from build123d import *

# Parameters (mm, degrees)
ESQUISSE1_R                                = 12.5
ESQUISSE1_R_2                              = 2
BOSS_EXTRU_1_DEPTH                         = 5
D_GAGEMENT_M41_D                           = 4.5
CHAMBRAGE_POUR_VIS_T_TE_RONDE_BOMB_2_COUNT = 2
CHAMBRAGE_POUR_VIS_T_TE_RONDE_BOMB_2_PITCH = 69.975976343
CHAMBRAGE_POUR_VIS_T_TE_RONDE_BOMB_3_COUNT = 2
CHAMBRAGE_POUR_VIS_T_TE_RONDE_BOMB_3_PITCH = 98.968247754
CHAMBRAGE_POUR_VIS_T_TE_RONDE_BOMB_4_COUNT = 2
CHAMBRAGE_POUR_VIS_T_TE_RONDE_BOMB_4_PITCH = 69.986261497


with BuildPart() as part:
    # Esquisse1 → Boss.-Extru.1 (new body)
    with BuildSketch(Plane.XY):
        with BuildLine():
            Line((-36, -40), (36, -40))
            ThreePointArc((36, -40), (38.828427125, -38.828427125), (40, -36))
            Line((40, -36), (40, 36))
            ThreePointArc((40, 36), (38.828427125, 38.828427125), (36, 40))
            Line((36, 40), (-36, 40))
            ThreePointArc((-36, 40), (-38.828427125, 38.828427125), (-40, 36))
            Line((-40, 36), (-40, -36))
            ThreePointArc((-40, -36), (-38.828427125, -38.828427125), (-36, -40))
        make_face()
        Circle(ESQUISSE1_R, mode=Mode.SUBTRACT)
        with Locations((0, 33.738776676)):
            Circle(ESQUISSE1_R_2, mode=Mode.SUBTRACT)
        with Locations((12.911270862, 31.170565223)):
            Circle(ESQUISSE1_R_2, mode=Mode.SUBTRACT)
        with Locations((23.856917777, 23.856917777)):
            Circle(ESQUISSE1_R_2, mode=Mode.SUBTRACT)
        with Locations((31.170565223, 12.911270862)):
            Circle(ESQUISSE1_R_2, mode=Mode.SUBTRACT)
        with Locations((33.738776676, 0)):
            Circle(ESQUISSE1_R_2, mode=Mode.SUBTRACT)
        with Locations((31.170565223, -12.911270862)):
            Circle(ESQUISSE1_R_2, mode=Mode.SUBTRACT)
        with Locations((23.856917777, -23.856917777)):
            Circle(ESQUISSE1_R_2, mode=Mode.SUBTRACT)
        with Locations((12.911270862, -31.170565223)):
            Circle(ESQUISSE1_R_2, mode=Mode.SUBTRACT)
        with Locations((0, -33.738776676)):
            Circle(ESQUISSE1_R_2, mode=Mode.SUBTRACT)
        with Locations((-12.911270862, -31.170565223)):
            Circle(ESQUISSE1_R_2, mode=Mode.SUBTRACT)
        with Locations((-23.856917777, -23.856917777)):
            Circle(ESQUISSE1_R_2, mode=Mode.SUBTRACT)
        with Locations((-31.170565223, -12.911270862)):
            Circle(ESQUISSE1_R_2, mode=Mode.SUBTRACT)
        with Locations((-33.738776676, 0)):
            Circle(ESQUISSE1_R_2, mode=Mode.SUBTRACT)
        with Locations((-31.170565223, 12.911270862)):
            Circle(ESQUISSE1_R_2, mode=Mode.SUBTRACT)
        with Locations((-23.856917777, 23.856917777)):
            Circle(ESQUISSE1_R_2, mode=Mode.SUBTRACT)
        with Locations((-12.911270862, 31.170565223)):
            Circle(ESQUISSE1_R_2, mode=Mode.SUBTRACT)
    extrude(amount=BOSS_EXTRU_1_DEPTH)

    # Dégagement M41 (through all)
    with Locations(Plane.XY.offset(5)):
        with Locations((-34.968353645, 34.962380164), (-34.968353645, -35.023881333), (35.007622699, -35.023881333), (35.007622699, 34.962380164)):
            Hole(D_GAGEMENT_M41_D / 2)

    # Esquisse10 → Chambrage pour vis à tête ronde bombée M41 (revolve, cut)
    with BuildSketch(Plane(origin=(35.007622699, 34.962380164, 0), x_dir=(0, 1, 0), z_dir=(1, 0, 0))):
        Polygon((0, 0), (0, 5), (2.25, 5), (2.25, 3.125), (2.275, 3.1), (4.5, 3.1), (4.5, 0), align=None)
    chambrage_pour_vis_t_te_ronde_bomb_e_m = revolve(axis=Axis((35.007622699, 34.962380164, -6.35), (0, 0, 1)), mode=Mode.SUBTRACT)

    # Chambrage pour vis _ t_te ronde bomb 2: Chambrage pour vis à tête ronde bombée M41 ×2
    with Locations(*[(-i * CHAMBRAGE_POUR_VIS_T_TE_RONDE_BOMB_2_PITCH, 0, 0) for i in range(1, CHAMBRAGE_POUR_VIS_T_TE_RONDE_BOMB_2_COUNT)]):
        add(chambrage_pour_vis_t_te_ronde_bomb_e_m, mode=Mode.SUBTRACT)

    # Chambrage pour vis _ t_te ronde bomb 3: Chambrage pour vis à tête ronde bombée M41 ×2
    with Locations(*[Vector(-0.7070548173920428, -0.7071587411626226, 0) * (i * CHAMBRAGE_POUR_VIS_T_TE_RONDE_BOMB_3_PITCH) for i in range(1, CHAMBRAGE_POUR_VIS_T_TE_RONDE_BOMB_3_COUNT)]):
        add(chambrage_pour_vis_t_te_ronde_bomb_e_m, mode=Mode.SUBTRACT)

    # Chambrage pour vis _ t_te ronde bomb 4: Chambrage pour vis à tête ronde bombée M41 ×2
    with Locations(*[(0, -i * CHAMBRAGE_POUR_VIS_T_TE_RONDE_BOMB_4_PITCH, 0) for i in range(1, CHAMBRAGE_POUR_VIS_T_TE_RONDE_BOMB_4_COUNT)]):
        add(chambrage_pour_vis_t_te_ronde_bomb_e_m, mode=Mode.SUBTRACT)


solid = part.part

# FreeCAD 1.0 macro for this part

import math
import FreeCAD as App
import Part
import Sketcher
from FreeCAD import Vector
Q = App.Units.Quantity

doc = App.newDocument("Part")
body = doc.addObject("PartDesign::Body", "Body")

# Sketch on XY plane
sketch1 = body.newObject("Sketcher::SketchObject", "Sketch")
sketch1.AttachmentSupport = (doc.getObject("XY_Plane"), [""])
sketch1.MapMode = "FlatFace"
sketch1.addGeometry([
    Part.LineSegment(Vector(-36, -40, 0), Vector(36, -40, 0)),  # 0
    Part.ArcOfCircle(Part.Circle(Vector(36, -36, 0), Vector(0, 0, 1), 4), math.radians(-90), math.radians(0)),  # 1
    Part.LineSegment(Vector(40, -36, 0), Vector(40, 36, 0)),  # 2
    Part.ArcOfCircle(Part.Circle(Vector(36, 36, 0), Vector(0, 0, 1), 4), math.radians(0), math.radians(90)),  # 3
    Part.LineSegment(Vector(36, 40, 0), Vector(-36, 40, 0)),  # 4
    Part.ArcOfCircle(Part.Circle(Vector(-36, 36, 0), Vector(0, 0, 1), 4), math.radians(90), math.radians(180)),  # 5
    Part.LineSegment(Vector(-40, 36, 0), Vector(-40, -36, 0)),  # 6
    Part.ArcOfCircle(Part.Circle(Vector(-36, -36, 0), Vector(0, 0, 1), 4), math.radians(180), math.radians(270)),  # 7
    Part.Circle(Vector(-23.9, -23.9, 0), Vector(0, 0, 1), 2),  # 8
    Part.Circle(Vector(-12.9, -31.2, 0), Vector(0, 0, 1), 2),  # 9
    Part.Circle(Vector(-31.2, -12.9, 0), Vector(0, 0, 1), 2),  # 10
    Part.Circle(Vector(0, -33.7, 0), Vector(0, 0, 1), 2),  # 11
    Part.Circle(Vector(12.9, -31.2, 0), Vector(0, 0, 1), 2),  # 12
    Part.Circle(Vector(23.9, -23.9, 0), Vector(0, 0, 1), 2),  # 13
    Part.Circle(Vector(31.2, -12.9, 0), Vector(0, 0, 1), 2),  # 14
    Part.Circle(Vector(-33.7, 0, 0), Vector(0, 0, 1), 2),  # 15
    Part.Circle(Vector(-31.2, 12.9, 0), Vector(0, 0, 1), 2),  # 16
    Part.Circle(Vector(-23.9, 23.9, 0), Vector(0, 0, 1), 2),  # 17
    Part.Circle(Vector(-12.9, 31.2, 0), Vector(0, 0, 1), 2),  # 18
    Part.Circle(Vector(0, 0, 0), Vector(0, 0, 1), 12.5),  # 19
    Part.Circle(Vector(33.7, 0, 0), Vector(0, 0, 1), 2),  # 20
    Part.Circle(Vector(31.2, 12.9, 0), Vector(0, 0, 1), 2),  # 21
    Part.Circle(Vector(0, 33.7, 0), Vector(0, 0, 1), 2),  # 22
    Part.Circle(Vector(12.9, 31.2, 0), Vector(0, 0, 1), 2),  # 23
    Part.Circle(Vector(23.9, 23.9, 0), Vector(0, 0, 1), 2),  # 24
], False)
sketch1.addConstraint([
    Sketcher.Constraint("Tangent", 0, 2, 1, 1),
    Sketcher.Constraint("Tangent", 1, 2, 2, 1),
    Sketcher.Constraint("Tangent", 2, 2, 3, 1),
    Sketcher.Constraint("Tangent", 3, 2, 4, 1),
    Sketcher.Constraint("Tangent", 4, 2, 5, 1),
    Sketcher.Constraint("Tangent", 5, 2, 6, 1),
    Sketcher.Constraint("Tangent", 6, 2, 7, 1),
    Sketcher.Constraint("Tangent", 7, 2, 0, 1),
    Sketcher.Constraint("Horizontal", 0),
    Sketcher.Constraint("Vertical", 2),
    Sketcher.Constraint("Horizontal", 4),
    Sketcher.Constraint("Vertical", 6),
    Sketcher.Constraint("Coincident", 19, 3, -1, 1),
    Sketcher.Constraint("Equal", 1, 3),
    Sketcher.Constraint("Equal", 3, 5),
    Sketcher.Constraint("Equal", 5, 7),
    Sketcher.Constraint("Equal", 8, 9),
    Sketcher.Constraint("Equal", 9, 10),
    Sketcher.Constraint("Equal", 10, 11),
    Sketcher.Constraint("Equal", 11, 12),
    Sketcher.Constraint("Equal", 12, 13),
    Sketcher.Constraint("Equal", 13, 14),
    Sketcher.Constraint("Equal", 14, 15),
    Sketcher.Constraint("Equal", 15, 16),
    Sketcher.Constraint("Equal", 16, 17),
    Sketcher.Constraint("Equal", 17, 18),
    Sketcher.Constraint("Equal", 18, 20),
    Sketcher.Constraint("Equal", 20, 21),
    Sketcher.Constraint("Equal", 21, 22),
    Sketcher.Constraint("Equal", 22, 23),
    Sketcher.Constraint("Equal", 23, 24),
    Sketcher.Constraint("Symmetric", 1, 3, 5, 3, -1, 1),
    Sketcher.Constraint("Symmetric", 14, 3, 16, 3, -1, 1),
    Sketcher.Constraint("Symmetric", 13, 3, 17, 3, -1, 1),
    Sketcher.Constraint("Symmetric", 12, 3, 18, 3, -1, 1),
    Sketcher.Constraint("Symmetric", 15, 3, 20, 3, -1, 1),
    Sketcher.Constraint("Symmetric", 10, 3, 21, 3, -1, 1),
    Sketcher.Constraint("Symmetric", 11, 3, 22, 3, -1, 1),
    Sketcher.Constraint("Symmetric", 9, 3, 23, 3, -1, 1),
    Sketcher.Constraint("Symmetric", 8, 3, 24, 3, -1, 1),
    Sketcher.Constraint("Symmetric", 9, 3, 12, 3, -2),
    Sketcher.Constraint("Symmetric", 8, 3, 13, 3, -2),
    Sketcher.Constraint("Symmetric", 10, 3, 14, 3, -2),
    Sketcher.Constraint("PointOnObject", 11, 3, -2),
    Sketcher.Constraint("PointOnObject", 15, 3, -1),
    Sketcher.Constraint("Equal", 4, 2),
    Sketcher.Constraint("Diameter", 8, Q("4 mm")),
    Sketcher.Constraint("Diameter", 19, Q("25 mm")),
    Sketcher.Constraint("Radius", 1, Q("4 mm")),
    Sketcher.Constraint("DistanceX", 0, 1, 0, 2, Q("72 mm")),
    Sketcher.Constraint("DistanceX", 9, 3, -1, 1, Q("12.911271 mm")),
    Sketcher.Constraint("DistanceY", 10, 3, -1, 1, Q("12.911271 mm")),
    Sketcher.Constraint("DistanceY", 11, 3, 9, 3, Q("2.568211 mm")),
    Sketcher.Constraint("DistanceY", 11, 3, 8, 3, Q("9.881859 mm")),
    Sketcher.Constraint("DistanceX", 8, 3, 12, 3, Q("36.768189 mm")),
    Sketcher.Constraint("DistanceX", 15, 3, 10, 3, Q("2.568211 mm")),
    Sketcher.Constraint("DistanceX", 15, 3, 8, 3, Q("9.881859 mm")),
    Sketcher.Constraint("DistanceY", 8, 3, 16, 3, Q("36.768189 mm")),
])
pad1 = body.newObject("PartDesign::Pad", "Pad")
pad1.Profile = sketch1
pad1.Length = 5

# Sketch on XY plane
sketch2 = body.newObject("Sketcher::SketchObject", "Sketch001")
sketch2.AttachmentSupport = (doc.getObject("XY_Plane"), [""])
sketch2.MapMode = "FlatFace"
sketch2.AttachmentOffset = App.Placement(Vector(0, 0, 5), App.Rotation())
sketch2.addGeometry([
    Part.Circle(Vector(-35, 35, 0), Vector(0, 0, 1), 2.2),
    Part.Circle(Vector(-35, -35, 0), Vector(0, 0, 1), 2.2),
    Part.Circle(Vector(35, -35, 0), Vector(0, 0, 1), 2.2),
    Part.Circle(Vector(35, 35, 0), Vector(0, 0, 1), 2.2),
], False)
sketch2.addConstraint([
    Sketcher.Constraint("Equal", 0, 1),
    Sketcher.Constraint("Equal", 1, 2),
    Sketcher.Constraint("Equal", 2, 3),
    Sketcher.Constraint("Horizontal", 1, 3, 2, 3),
    Sketcher.Constraint("Horizontal", 0, 3, 3, 3),
    Sketcher.Constraint("Vertical", 0, 3, 1, 3),
    Sketcher.Constraint("Vertical", 2, 3, 3, 3),
    Sketcher.Constraint("Diameter", 0, Q("4.5 mm")),
    Sketcher.Constraint("DistanceY", -1, 1, 0, 3, Q("34.96238 mm")),
    Sketcher.Constraint("DistanceY", 1, 3, -1, 1, Q("35.023881 mm")),
    Sketcher.Constraint("DistanceX", 0, 3, -1, 1, Q("34.968354 mm")),
    Sketcher.Constraint("DistanceX", -1, 1, 2, 3, Q("35.007623 mm")),
])
doc.recompute()
hole = body.newObject("PartDesign::Hole", "Hole")
hole.Profile = sketch2
hole.ThreadType = "None"
hole.Diameter = 4.5
hole.DepthType = "ThroughAll"

# Sketch on YZ plane
sketch3 = body.newObject("Sketcher::SketchObject", "Sketch002")
sketch3.AttachmentSupport = (doc.getObject("YZ_Plane"), [""])
sketch3.MapMode = "FlatFace"
sketch3.AttachmentOffset = App.Placement(Vector(0, 0, 35.007623), App.Rotation())
sketch3.addGeometry([
    Part.LineSegment(Vector(34.962, 5, 0), Vector(34.962, 0, 0)),  # 0
    Part.LineSegment(Vector(34.962, 0, 0), Vector(39.462, 0, 0)),  # 1
    Part.LineSegment(Vector(39.462, 0, 0), Vector(39.462, 3.1, 0)),  # 2
    Part.LineSegment(Vector(39.462, 3.1, 0), Vector(37.237, 3.1, 0)),  # 3
    Part.LineSegment(Vector(37.237, 3.1, 0), Vector(37.212, 3.125, 0)),  # 4
    Part.LineSegment(Vector(37.212, 3.125, 0), Vector(37.212, 5, 0)),  # 5
    Part.LineSegment(Vector(37.212, 5, 0), Vector(34.962, 5, 0)),  # 6
], False)
sketch3.addGeometry(Part.LineSegment(Vector(34.962, 0, 0), Vector(34.962, 5, 0)), True)  # axis
sketch3.addConstraint([
    Sketcher.Constraint("Coincident", 0, 2, 1, 1),
    Sketcher.Constraint("Coincident", 1, 2, 2, 1),
    Sketcher.Constraint("Coincident", 2, 2, 3, 1),
    Sketcher.Constraint("Coincident", 3, 2, 4, 1),
    Sketcher.Constraint("Coincident", 4, 2, 5, 1),
    Sketcher.Constraint("Coincident", 5, 2, 6, 1),
    Sketcher.Constraint("Coincident", 6, 2, 0, 1),
    Sketcher.Constraint("Vertical", 0),
    Sketcher.Constraint("Horizontal", 1),
    Sketcher.Constraint("Vertical", 2),
    Sketcher.Constraint("Horizontal", 3),
    Sketcher.Constraint("Vertical", 5),
    Sketcher.Constraint("Horizontal", 6),
    Sketcher.Constraint("Vertical", 7),
    Sketcher.Constraint("Coincident", 7, 1, 0, 2),
    Sketcher.Constraint("PointOnObject", 0, 2, -1),
    Sketcher.Constraint("Horizontal", 5, 2, 7, 2),
    Sketcher.Constraint("DistanceY", 0, 2, 0, 1, Q("5 mm")),
    Sketcher.Constraint("Angle", 4, Q("135 deg")),
    Sketcher.Constraint("DistanceX", 1, 1, 1, 2, Q("4.5 mm")),
    Sketcher.Constraint("DistanceY", 2, 1, 2, 2, Q("3.1 mm")),
    Sketcher.Constraint("DistanceX", 6, 2, 6, 1, Q("2.25 mm")),
    Sketcher.Constraint("DistanceX", 3, 2, 3, 1, Q("2.225 mm")),
    Sketcher.Constraint("DistanceX", -1, 1, 0, 2, Q("34.96238 mm")),
])
groove = body.newObject("PartDesign::Groove", "Groove")
groove.Profile = sketch3
groove.ReferenceAxis = (sketch3, ["Axis0"])
groove.Angle = 360
doc.recompute()

linearpattern = body.newObject("PartDesign::LinearPattern", "LinearPattern")
linearpattern.Originals = [groove]
linearpattern.Direction = (doc.getObject("X_Axis"), [""])
linearpattern.Mode = "offset"
linearpattern.Offset = 69.975976
linearpattern.Occurrences = 2
linearpattern.Reversed = True
body.Tip = linearpattern
doc.recompute()

datumline = body.newObject("PartDesign::Line", "DatumLine")
datumline.Placement = App.Placement(Vector(0, 0, 0), App.Rotation(Vector(0, 0, 1), Vector(-0.707054817, -0.707158741, 0)))
linearpattern2 = body.newObject("PartDesign::LinearPattern", "LinearPattern001")
linearpattern2.Originals = [groove]
linearpattern2.Direction = (datumline, [""])
linearpattern2.Mode = "offset"
linearpattern2.Offset = 98.968248
linearpattern2.Occurrences = 2
body.Tip = linearpattern2
doc.recompute()

linearpattern3 = body.newObject("PartDesign::LinearPattern", "LinearPattern002")
linearpattern3.Originals = [groove]
linearpattern3.Direction = (doc.getObject("Y_Axis"), [""])
linearpattern3.Mode = "offset"
linearpattern3.Offset = 69.986261
linearpattern3.Occurrences = 2
linearpattern3.Reversed = True
body.Tip = linearpattern3

doc.recompute()
